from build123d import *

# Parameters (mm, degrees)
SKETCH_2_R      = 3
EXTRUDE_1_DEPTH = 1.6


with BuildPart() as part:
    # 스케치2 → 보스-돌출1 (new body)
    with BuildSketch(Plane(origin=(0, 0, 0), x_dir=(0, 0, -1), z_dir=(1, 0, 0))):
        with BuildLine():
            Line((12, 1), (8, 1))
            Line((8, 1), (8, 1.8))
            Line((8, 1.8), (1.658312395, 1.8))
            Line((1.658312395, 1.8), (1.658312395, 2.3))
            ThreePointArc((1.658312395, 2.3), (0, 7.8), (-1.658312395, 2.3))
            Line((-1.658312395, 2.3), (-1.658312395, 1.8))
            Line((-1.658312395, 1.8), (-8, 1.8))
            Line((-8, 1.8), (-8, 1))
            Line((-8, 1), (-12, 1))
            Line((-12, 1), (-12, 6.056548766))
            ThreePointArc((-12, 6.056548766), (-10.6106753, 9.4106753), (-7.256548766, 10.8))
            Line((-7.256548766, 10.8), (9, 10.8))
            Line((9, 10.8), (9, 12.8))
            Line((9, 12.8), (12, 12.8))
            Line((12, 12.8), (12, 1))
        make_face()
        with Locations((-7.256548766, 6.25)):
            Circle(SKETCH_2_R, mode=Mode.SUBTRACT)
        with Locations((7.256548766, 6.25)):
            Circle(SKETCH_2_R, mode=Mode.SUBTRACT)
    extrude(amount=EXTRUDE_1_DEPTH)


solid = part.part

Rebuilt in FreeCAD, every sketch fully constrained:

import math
import FreeCAD as App
import Part
import Sketcher
from FreeCAD import Vector

doc = App.newDocument("Part")
body = doc.addObject("PartDesign::Body", "Body")

sketch1 = doc.addObject("Sketcher::SketchObject", "Sketch")
body.addObject(sketch1)
sketch1.AttachmentSupport = (doc.YZ_Plane, [""])
sketch1.MapMode = "FlatFace"
sketch1.addGeometry([
    Part.LineSegment(Vector(1, -8, 0), Vector(1, -12, 0)),
    Part.LineSegment(Vector(1, -12, 0), Vector(12.8, -12, 0)),
    Part.LineSegment(Vector(12.8, -12, 0), Vector(12.8, -9, 0)),
    Part.LineSegment(Vector(12.8, -9, 0), Vector(10.8, -9, 0)),
    Part.LineSegment(Vector(10.8, -9, 0), Vector(10.8, 7.256549, 0)),
    Part.ArcOfCircle(Part.Circle(Vector(6.056549, 7.256549, 0), Vector(0, 0, 1), 4.743451), math.radians(0), math.radians(90)),
    Part.LineSegment(Vector(6.056549, 12, 0), Vector(1, 12, 0)),
    Part.LineSegment(Vector(1, 12, 0), Vector(1, 8, 0)),
    Part.LineSegment(Vector(1, 8, 0), Vector(1.8, 8, 0)),
    Part.LineSegment(Vector(1.8, 8, 0), Vector(1.8, 1.658312, 0)),
    Part.LineSegment(Vector(1.8, 1.658312, 0), Vector(2.3, 1.658312, 0)),
    Part.ArcOfCircle(Part.Circle(Vector(4.8, 0, 0), Vector(0, 0, 1), 3), math.radians(-146.44269), math.radians(146.44269)),
    Part.LineSegment(Vector(2.3, -1.658312, 0), Vector(1.8, -1.658312, 0)),
    Part.LineSegment(Vector(1.8, -1.658312, 0), Vector(1.8, -8, 0)),
    Part.LineSegment(Vector(1.8, -8, 0), Vector(1, -8, 0)),
    Part.Circle(Vector(6.25, -7.256549, 0), Vector(0, 0, 1), 3),
    Part.Circle(Vector(6.25, 7.256549, 0), Vector(0, 0, 1), 3),
], False)
sketch1.addConstraint([
    Sketcher.Constraint("Coincident", 0, 2, 1, 1),
    Sketcher.Constraint("Coincident", 1, 2, 2, 1),
    Sketcher.Constraint("Coincident", 2, 2, 3, 1),
    Sketcher.Constraint("Coincident", 3, 2, 4, 1),
    Sketcher.Constraint("Tangent", 4, 2, 5, 1),
    Sketcher.Constraint("Tangent", 5, 2, 6, 1),
    Sketcher.Constraint("Coincident", 6, 2, 7, 1),
    Sketcher.Constraint("Coincident", 7, 2, 8, 1),
    Sketcher.Constraint("Coincident", 8, 2, 9, 1),
    Sketcher.Constraint("Coincident", 9, 2, 10, 1),
    Sketcher.Constraint("Coincident", 10, 2, 11, 2),
    Sketcher.Constraint("Coincident", 11, 1, 12, 1),
    Sketcher.Constraint("Coincident", 12, 2, 13, 1),
    Sketcher.Constraint("Coincident", 13, 2, 14, 1),
    Sketcher.Constraint("Coincident", 14, 2, 0, 1),
    Sketcher.Constraint("Vertical", 0),
    Sketcher.Constraint("Horizontal", 1),
    Sketcher.Constraint("Vertical", 2),
    Sketcher.Constraint("Horizontal", 3),
    Sketcher.Constraint("Vertical", 4),
    Sketcher.Constraint("Horizontal", 6),
    Sketcher.Constraint("Vertical", 7),
    Sketcher.Constraint("Horizontal", 8),
    Sketcher.Constraint("Vertical", 9),
    Sketcher.Constraint("Horizontal", 10),
    Sketcher.Constraint("Horizontal", 12),
    Sketcher.Constraint("Vertical", 13),
    Sketcher.Constraint("Horizontal", 14),
    Sketcher.Constraint("Equal", 11, 15),
    Sketcher.Constraint("Equal", 15, 16),
    Sketcher.Constraint("Symmetric", 15, 3, 16, 3, -1),
    Sketcher.Constraint("Symmetric", 0, 2, 6, 2, -1),
    Sketcher.Constraint("Symmetric", 10, 2, 11, 1, -1),
    Sketcher.Constraint("Symmetric", 8, 2, 13, 2, -1),
    Sketcher.Constraint("Horizontal", 5, 3, 16, 3),
    Sketcher.Constraint("Diameter", 15, 6.0),
    Sketcher.Constraint("DistanceX", 3, 2, 3, 1, 2.0),
    Sketcher.Constraint("DistanceY", 0, 2, 0, 1, 4.0),
    Sketcher.Constraint("DistanceY", 2, 1, 2, 2, 3.0),
    Sketcher.Constraint("DistanceX", 1, 1, 1, 2, 11.8),
    Sketcher.Constraint("DistanceX", 8, 1, 8, 2, 0.8),
    Sketcher.Constraint("DistanceX", 10, 1, 10, 2, 0.5),
    Sketcher.Constraint("DistanceX", -1, 1, 0, 2, 1.0),
    Sketcher.Constraint("DistanceY", 0, 2, -1, 1, 12.0),
    Sketcher.Constraint("DistanceX", 11, 3, 1, 2, 8.0),
    Sketcher.Constraint("DistanceX", -1, 1, 15, 3, 6.25),
    Sketcher.Constraint("Radius", 5, 4.743451),
])
pad1 = doc.addObject("PartDesign::Pad", "Pad")
body.addObject(pad1)
pad1.Profile = sketch1
pad1.Length = 1.6

doc.recompute()
